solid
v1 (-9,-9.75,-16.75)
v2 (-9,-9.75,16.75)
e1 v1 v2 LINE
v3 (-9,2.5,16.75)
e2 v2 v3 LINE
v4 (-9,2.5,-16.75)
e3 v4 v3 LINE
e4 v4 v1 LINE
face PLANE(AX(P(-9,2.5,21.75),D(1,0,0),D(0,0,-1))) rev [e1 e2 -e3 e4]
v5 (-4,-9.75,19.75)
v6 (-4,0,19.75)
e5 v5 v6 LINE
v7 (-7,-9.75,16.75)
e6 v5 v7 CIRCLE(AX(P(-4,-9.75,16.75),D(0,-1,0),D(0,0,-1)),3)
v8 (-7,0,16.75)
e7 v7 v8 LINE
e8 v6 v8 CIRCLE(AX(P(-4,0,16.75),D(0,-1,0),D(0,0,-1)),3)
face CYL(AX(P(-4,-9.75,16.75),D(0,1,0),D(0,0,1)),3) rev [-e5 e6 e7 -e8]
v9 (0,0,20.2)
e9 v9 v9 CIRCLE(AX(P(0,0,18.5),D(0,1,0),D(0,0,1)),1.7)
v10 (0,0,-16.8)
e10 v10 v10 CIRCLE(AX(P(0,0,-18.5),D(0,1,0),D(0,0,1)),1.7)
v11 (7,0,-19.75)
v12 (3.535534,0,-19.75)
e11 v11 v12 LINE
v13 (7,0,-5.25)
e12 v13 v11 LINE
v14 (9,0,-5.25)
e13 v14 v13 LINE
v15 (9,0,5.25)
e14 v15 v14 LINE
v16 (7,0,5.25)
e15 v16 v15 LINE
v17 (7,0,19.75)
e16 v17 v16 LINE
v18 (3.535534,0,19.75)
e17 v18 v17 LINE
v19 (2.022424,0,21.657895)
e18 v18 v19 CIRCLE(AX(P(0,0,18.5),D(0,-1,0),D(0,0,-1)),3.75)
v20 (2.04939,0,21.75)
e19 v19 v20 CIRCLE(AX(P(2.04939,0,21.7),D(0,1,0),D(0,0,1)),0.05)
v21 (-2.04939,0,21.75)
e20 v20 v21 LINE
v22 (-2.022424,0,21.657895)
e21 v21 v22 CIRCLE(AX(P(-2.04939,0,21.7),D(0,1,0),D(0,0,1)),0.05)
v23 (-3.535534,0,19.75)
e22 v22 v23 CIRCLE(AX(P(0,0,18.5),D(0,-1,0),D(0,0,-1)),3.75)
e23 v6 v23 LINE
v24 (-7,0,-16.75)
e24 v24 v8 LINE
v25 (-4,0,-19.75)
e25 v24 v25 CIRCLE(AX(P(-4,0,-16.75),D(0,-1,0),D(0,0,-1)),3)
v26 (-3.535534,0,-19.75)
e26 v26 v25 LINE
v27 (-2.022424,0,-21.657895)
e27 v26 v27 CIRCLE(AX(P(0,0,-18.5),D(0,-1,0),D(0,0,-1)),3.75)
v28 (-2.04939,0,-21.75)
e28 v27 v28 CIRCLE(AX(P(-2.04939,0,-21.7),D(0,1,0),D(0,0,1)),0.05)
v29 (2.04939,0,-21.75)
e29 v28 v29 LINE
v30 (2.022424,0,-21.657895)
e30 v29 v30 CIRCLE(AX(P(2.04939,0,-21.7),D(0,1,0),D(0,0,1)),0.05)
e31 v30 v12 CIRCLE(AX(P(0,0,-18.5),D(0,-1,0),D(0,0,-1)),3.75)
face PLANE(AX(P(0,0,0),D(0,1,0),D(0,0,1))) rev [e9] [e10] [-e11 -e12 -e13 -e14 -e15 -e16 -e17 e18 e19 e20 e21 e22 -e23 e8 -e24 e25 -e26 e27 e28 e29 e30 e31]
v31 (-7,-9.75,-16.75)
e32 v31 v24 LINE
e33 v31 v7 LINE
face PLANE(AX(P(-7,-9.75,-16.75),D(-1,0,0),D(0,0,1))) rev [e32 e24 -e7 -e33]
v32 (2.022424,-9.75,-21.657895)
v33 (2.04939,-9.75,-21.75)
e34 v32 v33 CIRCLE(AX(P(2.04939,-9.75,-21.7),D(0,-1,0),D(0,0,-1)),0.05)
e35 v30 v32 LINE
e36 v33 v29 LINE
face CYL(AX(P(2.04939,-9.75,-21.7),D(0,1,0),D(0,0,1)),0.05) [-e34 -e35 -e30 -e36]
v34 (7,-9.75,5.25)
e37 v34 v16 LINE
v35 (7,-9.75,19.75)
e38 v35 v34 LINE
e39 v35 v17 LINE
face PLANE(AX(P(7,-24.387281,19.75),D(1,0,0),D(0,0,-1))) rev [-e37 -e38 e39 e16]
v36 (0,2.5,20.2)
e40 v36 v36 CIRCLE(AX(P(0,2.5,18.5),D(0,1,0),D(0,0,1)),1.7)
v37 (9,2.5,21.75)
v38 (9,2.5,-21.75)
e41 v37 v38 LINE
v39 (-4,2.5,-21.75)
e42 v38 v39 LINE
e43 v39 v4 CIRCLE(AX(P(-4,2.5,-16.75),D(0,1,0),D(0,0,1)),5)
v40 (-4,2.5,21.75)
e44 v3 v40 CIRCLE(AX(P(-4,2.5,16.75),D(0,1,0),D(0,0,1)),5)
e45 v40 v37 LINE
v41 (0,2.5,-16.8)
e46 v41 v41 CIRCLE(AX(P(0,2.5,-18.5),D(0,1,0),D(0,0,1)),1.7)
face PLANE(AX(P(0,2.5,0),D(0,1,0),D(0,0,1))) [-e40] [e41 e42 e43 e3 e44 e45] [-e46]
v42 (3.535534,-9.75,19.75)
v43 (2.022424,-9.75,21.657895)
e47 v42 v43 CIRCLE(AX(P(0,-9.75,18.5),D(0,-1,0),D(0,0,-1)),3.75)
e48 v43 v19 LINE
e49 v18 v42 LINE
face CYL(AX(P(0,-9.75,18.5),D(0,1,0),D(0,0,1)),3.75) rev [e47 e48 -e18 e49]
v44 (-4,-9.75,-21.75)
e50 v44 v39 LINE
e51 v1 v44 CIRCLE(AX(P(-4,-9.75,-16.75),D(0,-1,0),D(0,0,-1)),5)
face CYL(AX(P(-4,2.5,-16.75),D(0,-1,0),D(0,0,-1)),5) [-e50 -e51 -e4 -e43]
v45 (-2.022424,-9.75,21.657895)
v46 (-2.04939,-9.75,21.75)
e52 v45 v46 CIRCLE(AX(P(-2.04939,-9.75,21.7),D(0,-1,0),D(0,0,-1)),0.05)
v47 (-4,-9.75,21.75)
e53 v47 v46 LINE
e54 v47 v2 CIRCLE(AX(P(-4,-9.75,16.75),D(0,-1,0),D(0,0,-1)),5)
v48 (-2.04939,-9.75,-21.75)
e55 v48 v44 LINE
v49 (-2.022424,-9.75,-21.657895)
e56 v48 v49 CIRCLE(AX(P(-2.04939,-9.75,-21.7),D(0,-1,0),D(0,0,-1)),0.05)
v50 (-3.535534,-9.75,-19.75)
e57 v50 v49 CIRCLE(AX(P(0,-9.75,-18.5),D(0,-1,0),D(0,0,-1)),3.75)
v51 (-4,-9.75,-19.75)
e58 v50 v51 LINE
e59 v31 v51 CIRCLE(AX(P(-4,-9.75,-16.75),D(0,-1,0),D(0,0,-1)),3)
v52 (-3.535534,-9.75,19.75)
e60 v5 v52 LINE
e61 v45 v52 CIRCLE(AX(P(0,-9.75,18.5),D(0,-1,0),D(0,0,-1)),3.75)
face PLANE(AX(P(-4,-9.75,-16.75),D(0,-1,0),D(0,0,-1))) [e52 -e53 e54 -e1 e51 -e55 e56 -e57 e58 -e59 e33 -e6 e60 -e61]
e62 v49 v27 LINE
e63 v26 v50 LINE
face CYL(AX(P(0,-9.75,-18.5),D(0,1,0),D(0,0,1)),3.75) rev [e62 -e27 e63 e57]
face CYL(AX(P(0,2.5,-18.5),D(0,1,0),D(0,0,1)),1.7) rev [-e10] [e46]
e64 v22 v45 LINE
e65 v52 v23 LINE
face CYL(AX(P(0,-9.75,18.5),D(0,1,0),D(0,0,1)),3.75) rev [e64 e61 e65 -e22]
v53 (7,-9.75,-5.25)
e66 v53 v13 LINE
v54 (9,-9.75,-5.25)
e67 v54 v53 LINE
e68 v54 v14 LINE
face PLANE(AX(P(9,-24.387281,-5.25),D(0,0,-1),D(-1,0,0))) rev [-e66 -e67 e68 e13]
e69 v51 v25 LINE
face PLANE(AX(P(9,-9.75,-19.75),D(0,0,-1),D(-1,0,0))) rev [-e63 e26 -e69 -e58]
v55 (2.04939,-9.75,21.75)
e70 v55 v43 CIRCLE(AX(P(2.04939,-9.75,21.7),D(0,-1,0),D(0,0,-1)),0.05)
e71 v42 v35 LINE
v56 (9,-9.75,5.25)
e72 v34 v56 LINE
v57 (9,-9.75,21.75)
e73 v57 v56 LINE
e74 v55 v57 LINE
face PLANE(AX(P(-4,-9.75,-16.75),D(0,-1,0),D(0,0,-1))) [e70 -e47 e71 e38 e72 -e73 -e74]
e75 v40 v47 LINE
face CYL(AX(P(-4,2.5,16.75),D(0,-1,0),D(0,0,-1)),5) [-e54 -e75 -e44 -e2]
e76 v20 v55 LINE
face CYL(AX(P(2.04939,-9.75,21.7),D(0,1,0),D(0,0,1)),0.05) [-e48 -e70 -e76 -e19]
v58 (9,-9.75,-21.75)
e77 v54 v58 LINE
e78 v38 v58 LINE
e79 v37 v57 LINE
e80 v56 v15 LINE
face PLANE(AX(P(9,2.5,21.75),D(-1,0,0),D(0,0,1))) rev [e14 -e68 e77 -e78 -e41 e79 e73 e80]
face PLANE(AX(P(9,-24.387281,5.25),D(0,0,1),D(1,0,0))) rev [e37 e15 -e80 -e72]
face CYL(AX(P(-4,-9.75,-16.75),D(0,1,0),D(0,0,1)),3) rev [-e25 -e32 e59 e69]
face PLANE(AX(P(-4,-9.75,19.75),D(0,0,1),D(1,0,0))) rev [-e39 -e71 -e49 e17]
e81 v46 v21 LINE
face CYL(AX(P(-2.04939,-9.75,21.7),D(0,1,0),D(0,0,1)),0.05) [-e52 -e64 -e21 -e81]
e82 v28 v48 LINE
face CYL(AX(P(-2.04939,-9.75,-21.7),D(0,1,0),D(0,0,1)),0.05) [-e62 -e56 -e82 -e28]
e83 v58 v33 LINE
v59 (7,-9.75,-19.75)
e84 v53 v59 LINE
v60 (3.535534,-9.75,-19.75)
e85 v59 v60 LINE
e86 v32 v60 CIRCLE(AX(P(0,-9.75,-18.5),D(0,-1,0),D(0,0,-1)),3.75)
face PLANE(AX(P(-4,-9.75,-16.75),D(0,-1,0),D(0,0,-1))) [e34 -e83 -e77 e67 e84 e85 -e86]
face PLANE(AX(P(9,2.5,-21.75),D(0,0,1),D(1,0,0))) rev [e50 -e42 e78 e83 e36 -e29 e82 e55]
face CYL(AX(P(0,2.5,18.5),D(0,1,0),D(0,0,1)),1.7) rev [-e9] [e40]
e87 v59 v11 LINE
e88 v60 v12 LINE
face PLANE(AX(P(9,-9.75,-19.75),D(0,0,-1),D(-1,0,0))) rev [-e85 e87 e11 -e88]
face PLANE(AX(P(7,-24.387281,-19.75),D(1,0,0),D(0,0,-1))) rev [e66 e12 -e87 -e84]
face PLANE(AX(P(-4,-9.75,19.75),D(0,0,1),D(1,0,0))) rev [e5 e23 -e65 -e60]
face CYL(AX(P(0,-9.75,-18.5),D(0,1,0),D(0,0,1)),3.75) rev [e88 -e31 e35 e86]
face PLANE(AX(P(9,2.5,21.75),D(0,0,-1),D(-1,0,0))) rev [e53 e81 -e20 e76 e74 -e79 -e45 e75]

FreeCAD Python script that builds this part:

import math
import FreeCAD as App
import Part
import Sketcher
Q = App.Units.Quantity


def edges_at(feature, points):
    """Names of the edges that pass closest to the given points."""
    edges = feature.Shape.Edges
    near = lambda p: min(range(len(edges)), key=lambda i: edges[i].distToShape(Part.Vertex(*p))[0])
    return sorted({f"Edge{near(p) + 1}" for p in points})


def add_polygon(sketch, points):
    """Adds a closed chain of lines whose ends are joined by coincident constraints."""
    first, n = sketch.GeometryCount, len(points)
    for a, b in zip(points, points[1:] + points[:1]):
        sketch.addGeometry(Part.LineSegment(App.Vector(*a, 0), App.Vector(*b, 0)), False)
    for i in range(n):
        sketch.addConstraint(Sketcher.Constraint("Coincident", first + i, 2, first + (i + 1) % n, 1))

doc = App.newDocument("Part")
body = doc.addObject("PartDesign::Body", "Body")

# Sketch on XZ plane
sketch1 = body.newObject("Sketcher::SketchObject", "Sketch")
sketch1.AttachmentSupport = (doc.getObject("XZ_Plane"), [""])
sketch1.MapMode = "FlatFace"
add_polygon(sketch1, [(-9, -22), (-9, 22), (9, 22), (9, -22)])  # lines 0-3
sketch1.addConstraint(Sketcher.Constraint("Vertical", 0))
sketch1.addConstraint(Sketcher.Constraint("Horizontal", 1))
sketch1.addConstraint(Sketcher.Constraint("Vertical", 2))
sketch1.addConstraint(Sketcher.Constraint("Horizontal", 3))
sketch1.addConstraint(Sketcher.Constraint("Symmetric", 0, 2, 2, 2, -1, 1))
sketch1.addConstraint(Sketcher.Constraint("DistanceX", 1, 1, 1, 2, Q("18 mm")))
sketch1.addConstraint(Sketcher.Constraint("DistanceY", 0, 1, 0, 2, Q("43.5 mm")))
pad1 = body.newObject("PartDesign::Pad", "Pad")
pad1.Profile = sketch1
pad1.Length = 2.5
pad1.Reversed = True
doc.recompute()

fillet = body.newObject("PartDesign::Fillet", "Fillet")
fillet.Base = (pad1, edges_at(pad1, [(-9, 1.25, -21.75), (-9, 1.25, 21.75)]))
fillet.Radius = 5

# Sketch on XZ plane
sketch2 = body.newObject("Sketcher::SketchObject", "Sketch001")
sketch2.AttachmentSupport = (doc.getObject("XZ_Plane"), [""])
sketch2.MapMode = "FlatFace"
sketch2.addGeometry(Part.LineSegment(App.Vector(-4, -21.8, 0), App.Vector(9, -21.8, 0)), False)
sketch2.addGeometry(Part.LineSegment(App.Vector(9, -21.8, 0), App.Vector(9, -19.8, 0)), False)
sketch2.addGeometry(Part.LineSegment(App.Vector(9, -19.8, 0), App.Vector(-4, -19.8, 0)), False)
sketch2.addGeometry(Part.ArcOfCircle(Part.Circle(App.Vector(-4, -16.8, 0), App.Vector(0, 0, 1), 3), math.radians(180), math.radians(270)), False)
sketch2.addGeometry(Part.LineSegment(App.Vector(-7, -16.8, 0), App.Vector(-7, 16.8, 0)), False)
sketch2.addGeometry(Part.ArcOfCircle(Part.Circle(App.Vector(-4, 16.8, 0), App.Vector(0, 0, 1), 3), math.radians(90), math.radians(180)), False)
sketch2.addGeometry(Part.LineSegment(App.Vector(-4, 19.8, 0), App.Vector(9, 19.8, 0)), False)
sketch2.addGeometry(Part.LineSegment(App.Vector(9, 19.8, 0), App.Vector(9, 21.8, 0)), False)
sketch2.addGeometry(Part.LineSegment(App.Vector(9, 21.8, 0), App.Vector(-4, 21.8, 0)), False)
sketch2.addGeometry(Part.ArcOfCircle(Part.Circle(App.Vector(-4, 16.8, 0), App.Vector(0, 0, 1), 5), math.radians(90), math.radians(180)), False)
sketch2.addGeometry(Part.LineSegment(App.Vector(-9, 16.8, 0), App.Vector(-9, -16.8, 0)), False)
sketch2.addGeometry(Part.ArcOfCircle(Part.Circle(App.Vector(-4, -16.8, 0), App.Vector(0, 0, 1), 5), math.radians(180), math.radians(270)), False)
sketch2.addConstraint(Sketcher.Constraint("Coincident", 0, 2, 1, 1))
sketch2.addConstraint(Sketcher.Constraint("Coincident", 1, 2, 2, 1))
sketch2.addConstraint(Sketcher.Constraint("Tangent", 2, 2, 3, 2))
sketch2.addConstraint(Sketcher.Constraint("Tangent", 3, 1, 4, 1))
sketch2.addConstraint(Sketcher.Constraint("Tangent", 4, 2, 5, 2))
sketch2.addConstraint(Sketcher.Constraint("Tangent", 5, 1, 6, 1))
sketch2.addConstraint(Sketcher.Constraint("Coincident", 6, 2, 7, 1))
sketch2.addConstraint(Sketcher.Constraint("Coincident", 7, 2, 8, 1))
sketch2.addConstraint(Sketcher.Constraint("Tangent", 8, 2, 9, 1))
sketch2.addConstraint(Sketcher.Constraint("Tangent", 9, 2, 10, 1))
sketch2.addConstraint(Sketcher.Constraint("Tangent", 10, 2, 11, 1))
sketch2.addConstraint(Sketcher.Constraint("Tangent", 11, 2, 0, 1))
sketch2.addConstraint(Sketcher.Constraint("Horizontal", 0))
sketch2.addConstraint(Sketcher.Constraint("Vertical", 1))
sketch2.addConstraint(Sketcher.Constraint("Horizontal", 2))
sketch2.addConstraint(Sketcher.Constraint("Vertical", 4))
sketch2.addConstraint(Sketcher.Constraint("Horizontal", 6))
sketch2.addConstraint(Sketcher.Constraint("Vertical", 7))
sketch2.addConstraint(Sketcher.Constraint("Horizontal", 8))
sketch2.addConstraint(Sketcher.Constraint("Vertical", 10))
sketch2.addConstraint(Sketcher.Constraint("Coincident", 9, 3, 5, 3))
sketch2.addConstraint(Sketcher.Constraint("Coincident", 11, 3, 3, 3))
sketch2.addConstraint(Sketcher.Constraint("Equal", 3, 5))
sketch2.addConstraint(Sketcher.Constraint("Symmetric", 1, 2, 6, 2, -1))
sketch2.addConstraint(Sketcher.Constraint("Radius", 3, Q("3 mm")))
sketch2.addConstraint(Sketcher.Constraint("Radius", 9, Q("5 mm")))
sketch2.addConstraint(Sketcher.Constraint("DistanceX", 0, 1, 0, 2, Q("13 mm")))
sketch2.addConstraint(Sketcher.Constraint("DistanceY", 4, 1, 4, 2, Q("33.5 mm")))
sketch2.addConstraint(Sketcher.Constraint("DistanceX", 3, 3, -1, 1, Q("4 mm")))
pad2 = body.newObject("PartDesign::Pad", "Pad001")
pad2.Profile = sketch2
pad2.Length = 9.75

# Sketch on XZ plane
sketch3 = body.newObject("Sketcher::SketchObject", "Sketch002")
sketch3.AttachmentSupport = (doc.getObject("XZ_Plane"), [""])
sketch3.MapMode = "FlatFace"
add_polygon(sketch3, [(7, 19.8), (7, 5.2), (9, 5.2), (9, 19.8)])  # lines 0-3
add_polygon(sketch3, [(7, -5.2), (7, -19.8), (9, -19.8), (9, -5.2)])  # lines 4-7
sketch3.addConstraint(Sketcher.Constraint("Vertical", 0))
sketch3.addConstraint(Sketcher.Constraint("Horizontal", 1))
sketch3.addConstraint(Sketcher.Constraint("Vertical", 2))
sketch3.addConstraint(Sketcher.Constraint("Horizontal", 3))
sketch3.addConstraint(Sketcher.Constraint("Vertical", 4))
sketch3.addConstraint(Sketcher.Constraint("Horizontal", 5))
sketch3.addConstraint(Sketcher.Constraint("Vertical", 6))
sketch3.addConstraint(Sketcher.Constraint("Horizontal", 7))
sketch3.addConstraint(Sketcher.Constraint("Symmetric", 3, 2, 4, 2, -1))
sketch3.addConstraint(Sketcher.Constraint("Symmetric", 1, 2, 6, 2, -1))
sketch3.addConstraint(Sketcher.Constraint("DistanceX", 1, 1, 1, 2, Q("2 mm")))
sketch3.addConstraint(Sketcher.Constraint("DistanceY", 0, 2, 0, 1, Q("14.5 mm")))
sketch3.addConstraint(Sketcher.Constraint("DistanceX", -1, 1, 0, 2, Q("7 mm")))
sketch3.addConstraint(Sketcher.Constraint("DistanceY", 4, 2, 0, 2, Q("25 mm")))
pad3 = body.newObject("PartDesign::Pad", "Pad002")
pad3.Profile = sketch3
pad3.Length = 9.75

# Sketch on XZ plane
sketch4 = body.newObject("Sketcher::SketchObject", "Sketch003")
sketch4.AttachmentSupport = (doc.getObject("XZ_Plane"), [""])
sketch4.MapMode = "FlatFace"
sketch4.AttachmentOffset = App.Placement(App.Vector(0, 0, -2.5), App.Rotation())
sketch4.addGeometry(Part.Circle(App.Vector(0, 18.5, 0), App.Vector(0, 0, 1), 1.7), False)
sketch4.addGeometry(Part.Circle(App.Vector(0, -18.5, 0), App.Vector(0, 0, 1), 1.7), False)
sketch4.addConstraint(Sketcher.Constraint("Equal", 0, 1))
sketch4.addConstraint(Sketcher.Constraint("Symmetric", 0, 3, 1, 3, -1, 1))
sketch4.addConstraint(Sketcher.Constraint("PointOnObject", 0, 3, -2))
sketch4.addConstraint(Sketcher.Constraint("Diameter", 0, Q("3.4 mm")))
sketch4.addConstraint(Sketcher.Constraint("DistanceY", 1, 3, 0, 3, Q("37 mm")))
doc.recompute()
hole = body.newObject("PartDesign::Hole", "Hole")
hole.Profile = sketch4
hole.ThreadType = "None"
hole.Diameter = 3.4
hole.DepthType = "ThroughAll"
hole.Reversed = True

# Sketch on XZ plane
sketch5 = body.newObject("Sketcher::SketchObject", "Sketch004")
sketch5.AttachmentSupport = (doc.getObject("XZ_Plane"), [""])
sketch5.MapMode = "FlatFace"
sketch5.addGeometry(Part.Circle(App.Vector(0, 18.5, 0), App.Vector(0, 0, 1), 3.8), False)
sketch5.addGeometry(Part.Circle(App.Vector(0, -18.5, 0), App.Vector(0, 0, 1), 3.8), False)
sketch5.addConstraint(Sketcher.Constraint("Equal", 0, 1))
sketch5.addConstraint(Sketcher.Constraint("Symmetric", 0, 3, 1, 3, -1, 1))
sketch5.addConstraint(Sketcher.Constraint("PointOnObject", 0, 3, -2))
sketch5.addConstraint(Sketcher.Constraint("Diameter", 0, Q("7.5 mm")))
sketch5.addConstraint(Sketcher.Constraint("DistanceY", 1, 3, 0, 3, Q("37 mm")))
pocket1 = body.newObject("PartDesign::Pocket", "Pocket")
pocket1.Profile = sketch5
pocket1.Type = "ThroughAll"
pocket1.Reversed = True
doc.recompute()

fillet2 = body.newObject("PartDesign::Fillet", "Fillet001")
fillet2.Base = (pocket1, edges_at(pocket1, [
    (-1.871, -4.875, -21.75),
    (1.871, -4.875, -21.75),
    (1.871, -4.875, 21.75),
    (-1.871, -4.875, 21.75),
]))
fillet2.Radius = 0.05

doc.recompute()
